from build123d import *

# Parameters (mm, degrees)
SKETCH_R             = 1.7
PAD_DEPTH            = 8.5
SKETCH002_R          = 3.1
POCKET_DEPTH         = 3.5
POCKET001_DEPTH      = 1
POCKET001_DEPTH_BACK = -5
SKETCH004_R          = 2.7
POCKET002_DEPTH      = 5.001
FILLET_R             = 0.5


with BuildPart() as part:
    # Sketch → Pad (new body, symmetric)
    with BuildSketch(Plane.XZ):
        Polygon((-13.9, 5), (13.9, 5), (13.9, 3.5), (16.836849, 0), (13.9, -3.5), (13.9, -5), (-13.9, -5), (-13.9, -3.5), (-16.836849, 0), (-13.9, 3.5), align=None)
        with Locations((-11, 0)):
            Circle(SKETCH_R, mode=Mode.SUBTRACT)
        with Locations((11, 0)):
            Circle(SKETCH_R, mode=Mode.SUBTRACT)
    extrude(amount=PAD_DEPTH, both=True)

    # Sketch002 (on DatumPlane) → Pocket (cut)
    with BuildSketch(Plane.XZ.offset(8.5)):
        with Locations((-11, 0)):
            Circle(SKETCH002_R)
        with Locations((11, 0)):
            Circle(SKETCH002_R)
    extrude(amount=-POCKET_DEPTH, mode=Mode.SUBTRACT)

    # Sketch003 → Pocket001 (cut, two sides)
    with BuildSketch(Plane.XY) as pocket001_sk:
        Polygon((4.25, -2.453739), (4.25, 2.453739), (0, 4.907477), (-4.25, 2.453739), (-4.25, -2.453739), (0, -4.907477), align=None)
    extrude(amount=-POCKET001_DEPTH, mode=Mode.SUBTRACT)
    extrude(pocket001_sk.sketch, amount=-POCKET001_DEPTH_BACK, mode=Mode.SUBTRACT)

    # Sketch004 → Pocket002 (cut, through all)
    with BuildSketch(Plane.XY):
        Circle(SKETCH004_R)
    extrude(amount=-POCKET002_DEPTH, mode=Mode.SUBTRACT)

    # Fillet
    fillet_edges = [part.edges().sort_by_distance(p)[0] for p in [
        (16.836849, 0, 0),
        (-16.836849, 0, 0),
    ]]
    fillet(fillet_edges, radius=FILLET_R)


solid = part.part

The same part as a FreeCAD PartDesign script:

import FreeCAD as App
import Part
import Sketcher
Q = App.Units.Quantity


def edges_at(feature, points):
    """Names of the edges that pass closest to the given points."""
    edges = feature.Shape.Edges
    near = lambda p: min(range(len(edges)), key=lambda i: edges[i].distToShape(Part.Vertex(*p))[0])
    return sorted({f"Edge{near(p) + 1}" for p in points})

doc = App.newDocument("Part")
body = doc.addObject("PartDesign::Body", "Body")

# Sketch on XZ plane
sketch1 = body.newObject("Sketcher::SketchObject", "Sketch")
sketch1.AttachmentSupport = (doc.getObject("XZ_Plane"), [""])
sketch1.MapMode = "FlatFace"
sketch1.addGeometry([
    Part.LineSegment(App.Vector(13.9, 5, 0), App.Vector(-13.9, 5, 0)),  # 0
    Part.LineSegment(App.Vector(-13.9, 5, 0), App.Vector(-13.9, 3.5, 0)),  # 1
    Part.LineSegment(App.Vector(-13.9, 3.5, 0), App.Vector(-16.8, 0, 0)),  # 2
    Part.LineSegment(App.Vector(-16.8, 0, 0), App.Vector(-13.9, -3.5, 0)),  # 3
    Part.LineSegment(App.Vector(-13.9, -3.5, 0), App.Vector(-13.9, -5, 0)),  # 4
    Part.LineSegment(App.Vector(-13.9, -5, 0), App.Vector(13.9, -5, 0)),  # 5
    Part.LineSegment(App.Vector(13.9, -5, 0), App.Vector(13.9, -3.5, 0)),  # 6
    Part.LineSegment(App.Vector(13.9, -3.5, 0), App.Vector(16.8, 0, 0)),  # 7
    Part.LineSegment(App.Vector(16.8, 0, 0), App.Vector(13.9, 3.5, 0)),  # 8
    Part.LineSegment(App.Vector(13.9, 3.5, 0), App.Vector(13.9, 5, 0)),  # 9
    Part.Circle(App.Vector(11, 0, 0), App.Vector(0, 0, 1), 1.7),  # 10
    Part.Circle(App.Vector(-11, 0, 0), App.Vector(0, 0, 1), 1.7),  # 11
], False)
sketch1.addConstraint([
    Sketcher.Constraint("Coincident", 0, 2, 1, 1),
    Sketcher.Constraint("Coincident", 1, 2, 2, 1),
    Sketcher.Constraint("Coincident", 2, 2, 3, 1),
    Sketcher.Constraint("Coincident", 3, 2, 4, 1),
    Sketcher.Constraint("Coincident", 4, 2, 5, 1),
    Sketcher.Constraint("Coincident", 5, 2, 6, 1),
    Sketcher.Constraint("Coincident", 6, 2, 7, 1),
    Sketcher.Constraint("Coincident", 7, 2, 8, 1),
    Sketcher.Constraint("Coincident", 8, 2, 9, 1),
    Sketcher.Constraint("Coincident", 9, 2, 0, 1),
    Sketcher.Constraint("Horizontal", 0),
    Sketcher.Constraint("Vertical", 1),
    Sketcher.Constraint("Vertical", 4),
    Sketcher.Constraint("Horizontal", 5),
    Sketcher.Constraint("Vertical", 6),
    Sketcher.Constraint("Vertical", 9),
    Sketcher.Constraint("Equal", 10, 11),
    Sketcher.Constraint("Symmetric", 10, 3, 11, 3, -1, 1),
    Sketcher.Constraint("Symmetric", 0, 2, 5, 2, -1, 1),
    Sketcher.Constraint("Symmetric", 2, 2, 7, 2, -1, 1),
    Sketcher.Constraint("Symmetric", 3, 2, 8, 2, -1, 1),
    Sketcher.Constraint("Symmetric", 3, 2, 6, 2, -2),
    Sketcher.Constraint("PointOnObject", 10, 3, -1),
    Sketcher.Constraint("PointOnObject", 2, 2, -1),
    Sketcher.Constraint("Parallel", 2, 7),
    Sketcher.Constraint("Diameter", 10, 3.4),
    Sketcher.Constraint("Angle", 2, Q("-130.000003 deg")),
    Sketcher.Constraint("DistanceX", 0, 2, 0, 1, 27.8),
    Sketcher.Constraint("DistanceY", 1, 2, 1, 1, 1.5),
    Sketcher.Constraint("DistanceX", -1, 1, 10, 3, 11.0),
    Sketcher.Constraint("DistanceY", -1, 1, 0, 2, 5.0),
])
pad1 = body.newObject("PartDesign::Pad", "Pad")
pad1.Profile = sketch1
pad1.Length = 17
pad1.Midplane = True

# Sketch on XZ plane
sketch2 = body.newObject("Sketcher::SketchObject", "Sketch001")
sketch2.AttachmentSupport = (doc.getObject("XZ_Plane"), [""])
sketch2.MapMode = "FlatFace"
sketch2.AttachmentOffset = App.Placement(App.Vector(0, 0, 8.5), App.Rotation())
sketch2.addGeometry([
    Part.Circle(App.Vector(-11, 0, 0), App.Vector(0, 0, 1), 3.1),
    Part.Circle(App.Vector(11, 0, 0), App.Vector(0, 0, 1), 3.1),
], False)
sketch2.addConstraint([
    Sketcher.Constraint("Equal", 0, 1),
    Sketcher.Constraint("Symmetric", 0, 3, 1, 3, -1, 1),
    Sketcher.Constraint("PointOnObject", 0, 3, -1),
    Sketcher.Constraint("Diameter", 0, 6.2),
    Sketcher.Constraint("DistanceX", 0, 3, -1, 1, 11.0),
])
pocket1 = body.newObject("PartDesign::Pocket", "Pocket")
pocket1.Profile = sketch2
pocket1.Length = 3.5

# Sketch on XY plane
sketch3 = body.newObject("Sketcher::SketchObject", "Sketch002")
sketch3.AttachmentSupport = (doc.getObject("XY_Plane"), [""])
sketch3.MapMode = "FlatFace"
sketch3.addGeometry([
    Part.LineSegment(App.Vector(4.2, -2.5, 0), App.Vector(4.2, 2.5, 0)),  # 0
    Part.LineSegment(App.Vector(4.2, 2.5, 0), App.Vector(0, 4.9, 0)),  # 1
    Part.LineSegment(App.Vector(0, 4.9, 0), App.Vector(-4.2, 2.5, 0)),  # 2
    Part.LineSegment(App.Vector(-4.2, 2.5, 0), App.Vector(-4.2, -2.5, 0)),  # 3
    Part.LineSegment(App.Vector(-4.2, -2.5, 0), App.Vector(0, -4.9, 0)),  # 4
    Part.LineSegment(App.Vector(0, -4.9, 0), App.Vector(4.2, -2.5, 0)),  # 5
], False)
sketch3.addConstraint([
    Sketcher.Constraint("Coincident", 0, 2, 1, 1),
    Sketcher.Constraint("Coincident", 1, 2, 2, 1),
    Sketcher.Constraint("Coincident", 2, 2, 3, 1),
    Sketcher.Constraint("Coincident", 3, 2, 4, 1),
    Sketcher.Constraint("Coincident", 4, 2, 5, 1),
    Sketcher.Constraint("Coincident", 5, 2, 0, 1),
    Sketcher.Constraint("Vertical", 0),
    Sketcher.Constraint("Vertical", 3),
    Sketcher.Constraint("Symmetric", 0, 2, 3, 2, -1, 1),
    Sketcher.Constraint("Symmetric", 1, 2, 4, 2, -1, 1),
    Sketcher.Constraint("PointOnObject", 1, 2, -2),
    Sketcher.Constraint("Parallel", 2, 5),
    Sketcher.Constraint("Horizontal", 0, 2, 2, 2),
    Sketcher.Constraint("Angle", 1, Q("150.000007 deg")),
    Sketcher.Constraint("DistanceX", 2, 2, 0, 2, 8.5),
    Sketcher.Constraint("DistanceY", 0, 1, 0, 2, 4.907478),
])
pocket2 = body.newObject("PartDesign::Pocket", "Pocket001")
pocket2.Profile = sketch3
pocket2.Type = "TwoLengths"
pocket2.Length = 1
pocket2.Length2 = 5

# Sketch on XY plane
sketch4 = body.newObject("Sketcher::SketchObject", "Sketch003")
sketch4.AttachmentSupport = (doc.getObject("XY_Plane"), [""])
sketch4.MapMode = "FlatFace"
sketch4.addGeometry(Part.Circle(App.Vector(0, 0, 0), App.Vector(0, 0, 1), 2.7), False)
sketch4.addConstraint([
    Sketcher.Constraint("Coincident", 0, 3, -1, 1),
    Sketcher.Constraint("Diameter", 0, 5.4),
])
pocket3 = body.newObject("PartDesign::Pocket", "Pocket002")
pocket3.Profile = sketch4
pocket3.Type = "ThroughAll"
doc.recompute()

fillet = body.newObject("PartDesign::Fillet", "Fillet")
fillet.Base = (pocket3, edges_at(pocket3, [(16.837, 0, 0), (-16.837, 0, 0)]))
fillet.Radius = 0.5

doc.recompute()
